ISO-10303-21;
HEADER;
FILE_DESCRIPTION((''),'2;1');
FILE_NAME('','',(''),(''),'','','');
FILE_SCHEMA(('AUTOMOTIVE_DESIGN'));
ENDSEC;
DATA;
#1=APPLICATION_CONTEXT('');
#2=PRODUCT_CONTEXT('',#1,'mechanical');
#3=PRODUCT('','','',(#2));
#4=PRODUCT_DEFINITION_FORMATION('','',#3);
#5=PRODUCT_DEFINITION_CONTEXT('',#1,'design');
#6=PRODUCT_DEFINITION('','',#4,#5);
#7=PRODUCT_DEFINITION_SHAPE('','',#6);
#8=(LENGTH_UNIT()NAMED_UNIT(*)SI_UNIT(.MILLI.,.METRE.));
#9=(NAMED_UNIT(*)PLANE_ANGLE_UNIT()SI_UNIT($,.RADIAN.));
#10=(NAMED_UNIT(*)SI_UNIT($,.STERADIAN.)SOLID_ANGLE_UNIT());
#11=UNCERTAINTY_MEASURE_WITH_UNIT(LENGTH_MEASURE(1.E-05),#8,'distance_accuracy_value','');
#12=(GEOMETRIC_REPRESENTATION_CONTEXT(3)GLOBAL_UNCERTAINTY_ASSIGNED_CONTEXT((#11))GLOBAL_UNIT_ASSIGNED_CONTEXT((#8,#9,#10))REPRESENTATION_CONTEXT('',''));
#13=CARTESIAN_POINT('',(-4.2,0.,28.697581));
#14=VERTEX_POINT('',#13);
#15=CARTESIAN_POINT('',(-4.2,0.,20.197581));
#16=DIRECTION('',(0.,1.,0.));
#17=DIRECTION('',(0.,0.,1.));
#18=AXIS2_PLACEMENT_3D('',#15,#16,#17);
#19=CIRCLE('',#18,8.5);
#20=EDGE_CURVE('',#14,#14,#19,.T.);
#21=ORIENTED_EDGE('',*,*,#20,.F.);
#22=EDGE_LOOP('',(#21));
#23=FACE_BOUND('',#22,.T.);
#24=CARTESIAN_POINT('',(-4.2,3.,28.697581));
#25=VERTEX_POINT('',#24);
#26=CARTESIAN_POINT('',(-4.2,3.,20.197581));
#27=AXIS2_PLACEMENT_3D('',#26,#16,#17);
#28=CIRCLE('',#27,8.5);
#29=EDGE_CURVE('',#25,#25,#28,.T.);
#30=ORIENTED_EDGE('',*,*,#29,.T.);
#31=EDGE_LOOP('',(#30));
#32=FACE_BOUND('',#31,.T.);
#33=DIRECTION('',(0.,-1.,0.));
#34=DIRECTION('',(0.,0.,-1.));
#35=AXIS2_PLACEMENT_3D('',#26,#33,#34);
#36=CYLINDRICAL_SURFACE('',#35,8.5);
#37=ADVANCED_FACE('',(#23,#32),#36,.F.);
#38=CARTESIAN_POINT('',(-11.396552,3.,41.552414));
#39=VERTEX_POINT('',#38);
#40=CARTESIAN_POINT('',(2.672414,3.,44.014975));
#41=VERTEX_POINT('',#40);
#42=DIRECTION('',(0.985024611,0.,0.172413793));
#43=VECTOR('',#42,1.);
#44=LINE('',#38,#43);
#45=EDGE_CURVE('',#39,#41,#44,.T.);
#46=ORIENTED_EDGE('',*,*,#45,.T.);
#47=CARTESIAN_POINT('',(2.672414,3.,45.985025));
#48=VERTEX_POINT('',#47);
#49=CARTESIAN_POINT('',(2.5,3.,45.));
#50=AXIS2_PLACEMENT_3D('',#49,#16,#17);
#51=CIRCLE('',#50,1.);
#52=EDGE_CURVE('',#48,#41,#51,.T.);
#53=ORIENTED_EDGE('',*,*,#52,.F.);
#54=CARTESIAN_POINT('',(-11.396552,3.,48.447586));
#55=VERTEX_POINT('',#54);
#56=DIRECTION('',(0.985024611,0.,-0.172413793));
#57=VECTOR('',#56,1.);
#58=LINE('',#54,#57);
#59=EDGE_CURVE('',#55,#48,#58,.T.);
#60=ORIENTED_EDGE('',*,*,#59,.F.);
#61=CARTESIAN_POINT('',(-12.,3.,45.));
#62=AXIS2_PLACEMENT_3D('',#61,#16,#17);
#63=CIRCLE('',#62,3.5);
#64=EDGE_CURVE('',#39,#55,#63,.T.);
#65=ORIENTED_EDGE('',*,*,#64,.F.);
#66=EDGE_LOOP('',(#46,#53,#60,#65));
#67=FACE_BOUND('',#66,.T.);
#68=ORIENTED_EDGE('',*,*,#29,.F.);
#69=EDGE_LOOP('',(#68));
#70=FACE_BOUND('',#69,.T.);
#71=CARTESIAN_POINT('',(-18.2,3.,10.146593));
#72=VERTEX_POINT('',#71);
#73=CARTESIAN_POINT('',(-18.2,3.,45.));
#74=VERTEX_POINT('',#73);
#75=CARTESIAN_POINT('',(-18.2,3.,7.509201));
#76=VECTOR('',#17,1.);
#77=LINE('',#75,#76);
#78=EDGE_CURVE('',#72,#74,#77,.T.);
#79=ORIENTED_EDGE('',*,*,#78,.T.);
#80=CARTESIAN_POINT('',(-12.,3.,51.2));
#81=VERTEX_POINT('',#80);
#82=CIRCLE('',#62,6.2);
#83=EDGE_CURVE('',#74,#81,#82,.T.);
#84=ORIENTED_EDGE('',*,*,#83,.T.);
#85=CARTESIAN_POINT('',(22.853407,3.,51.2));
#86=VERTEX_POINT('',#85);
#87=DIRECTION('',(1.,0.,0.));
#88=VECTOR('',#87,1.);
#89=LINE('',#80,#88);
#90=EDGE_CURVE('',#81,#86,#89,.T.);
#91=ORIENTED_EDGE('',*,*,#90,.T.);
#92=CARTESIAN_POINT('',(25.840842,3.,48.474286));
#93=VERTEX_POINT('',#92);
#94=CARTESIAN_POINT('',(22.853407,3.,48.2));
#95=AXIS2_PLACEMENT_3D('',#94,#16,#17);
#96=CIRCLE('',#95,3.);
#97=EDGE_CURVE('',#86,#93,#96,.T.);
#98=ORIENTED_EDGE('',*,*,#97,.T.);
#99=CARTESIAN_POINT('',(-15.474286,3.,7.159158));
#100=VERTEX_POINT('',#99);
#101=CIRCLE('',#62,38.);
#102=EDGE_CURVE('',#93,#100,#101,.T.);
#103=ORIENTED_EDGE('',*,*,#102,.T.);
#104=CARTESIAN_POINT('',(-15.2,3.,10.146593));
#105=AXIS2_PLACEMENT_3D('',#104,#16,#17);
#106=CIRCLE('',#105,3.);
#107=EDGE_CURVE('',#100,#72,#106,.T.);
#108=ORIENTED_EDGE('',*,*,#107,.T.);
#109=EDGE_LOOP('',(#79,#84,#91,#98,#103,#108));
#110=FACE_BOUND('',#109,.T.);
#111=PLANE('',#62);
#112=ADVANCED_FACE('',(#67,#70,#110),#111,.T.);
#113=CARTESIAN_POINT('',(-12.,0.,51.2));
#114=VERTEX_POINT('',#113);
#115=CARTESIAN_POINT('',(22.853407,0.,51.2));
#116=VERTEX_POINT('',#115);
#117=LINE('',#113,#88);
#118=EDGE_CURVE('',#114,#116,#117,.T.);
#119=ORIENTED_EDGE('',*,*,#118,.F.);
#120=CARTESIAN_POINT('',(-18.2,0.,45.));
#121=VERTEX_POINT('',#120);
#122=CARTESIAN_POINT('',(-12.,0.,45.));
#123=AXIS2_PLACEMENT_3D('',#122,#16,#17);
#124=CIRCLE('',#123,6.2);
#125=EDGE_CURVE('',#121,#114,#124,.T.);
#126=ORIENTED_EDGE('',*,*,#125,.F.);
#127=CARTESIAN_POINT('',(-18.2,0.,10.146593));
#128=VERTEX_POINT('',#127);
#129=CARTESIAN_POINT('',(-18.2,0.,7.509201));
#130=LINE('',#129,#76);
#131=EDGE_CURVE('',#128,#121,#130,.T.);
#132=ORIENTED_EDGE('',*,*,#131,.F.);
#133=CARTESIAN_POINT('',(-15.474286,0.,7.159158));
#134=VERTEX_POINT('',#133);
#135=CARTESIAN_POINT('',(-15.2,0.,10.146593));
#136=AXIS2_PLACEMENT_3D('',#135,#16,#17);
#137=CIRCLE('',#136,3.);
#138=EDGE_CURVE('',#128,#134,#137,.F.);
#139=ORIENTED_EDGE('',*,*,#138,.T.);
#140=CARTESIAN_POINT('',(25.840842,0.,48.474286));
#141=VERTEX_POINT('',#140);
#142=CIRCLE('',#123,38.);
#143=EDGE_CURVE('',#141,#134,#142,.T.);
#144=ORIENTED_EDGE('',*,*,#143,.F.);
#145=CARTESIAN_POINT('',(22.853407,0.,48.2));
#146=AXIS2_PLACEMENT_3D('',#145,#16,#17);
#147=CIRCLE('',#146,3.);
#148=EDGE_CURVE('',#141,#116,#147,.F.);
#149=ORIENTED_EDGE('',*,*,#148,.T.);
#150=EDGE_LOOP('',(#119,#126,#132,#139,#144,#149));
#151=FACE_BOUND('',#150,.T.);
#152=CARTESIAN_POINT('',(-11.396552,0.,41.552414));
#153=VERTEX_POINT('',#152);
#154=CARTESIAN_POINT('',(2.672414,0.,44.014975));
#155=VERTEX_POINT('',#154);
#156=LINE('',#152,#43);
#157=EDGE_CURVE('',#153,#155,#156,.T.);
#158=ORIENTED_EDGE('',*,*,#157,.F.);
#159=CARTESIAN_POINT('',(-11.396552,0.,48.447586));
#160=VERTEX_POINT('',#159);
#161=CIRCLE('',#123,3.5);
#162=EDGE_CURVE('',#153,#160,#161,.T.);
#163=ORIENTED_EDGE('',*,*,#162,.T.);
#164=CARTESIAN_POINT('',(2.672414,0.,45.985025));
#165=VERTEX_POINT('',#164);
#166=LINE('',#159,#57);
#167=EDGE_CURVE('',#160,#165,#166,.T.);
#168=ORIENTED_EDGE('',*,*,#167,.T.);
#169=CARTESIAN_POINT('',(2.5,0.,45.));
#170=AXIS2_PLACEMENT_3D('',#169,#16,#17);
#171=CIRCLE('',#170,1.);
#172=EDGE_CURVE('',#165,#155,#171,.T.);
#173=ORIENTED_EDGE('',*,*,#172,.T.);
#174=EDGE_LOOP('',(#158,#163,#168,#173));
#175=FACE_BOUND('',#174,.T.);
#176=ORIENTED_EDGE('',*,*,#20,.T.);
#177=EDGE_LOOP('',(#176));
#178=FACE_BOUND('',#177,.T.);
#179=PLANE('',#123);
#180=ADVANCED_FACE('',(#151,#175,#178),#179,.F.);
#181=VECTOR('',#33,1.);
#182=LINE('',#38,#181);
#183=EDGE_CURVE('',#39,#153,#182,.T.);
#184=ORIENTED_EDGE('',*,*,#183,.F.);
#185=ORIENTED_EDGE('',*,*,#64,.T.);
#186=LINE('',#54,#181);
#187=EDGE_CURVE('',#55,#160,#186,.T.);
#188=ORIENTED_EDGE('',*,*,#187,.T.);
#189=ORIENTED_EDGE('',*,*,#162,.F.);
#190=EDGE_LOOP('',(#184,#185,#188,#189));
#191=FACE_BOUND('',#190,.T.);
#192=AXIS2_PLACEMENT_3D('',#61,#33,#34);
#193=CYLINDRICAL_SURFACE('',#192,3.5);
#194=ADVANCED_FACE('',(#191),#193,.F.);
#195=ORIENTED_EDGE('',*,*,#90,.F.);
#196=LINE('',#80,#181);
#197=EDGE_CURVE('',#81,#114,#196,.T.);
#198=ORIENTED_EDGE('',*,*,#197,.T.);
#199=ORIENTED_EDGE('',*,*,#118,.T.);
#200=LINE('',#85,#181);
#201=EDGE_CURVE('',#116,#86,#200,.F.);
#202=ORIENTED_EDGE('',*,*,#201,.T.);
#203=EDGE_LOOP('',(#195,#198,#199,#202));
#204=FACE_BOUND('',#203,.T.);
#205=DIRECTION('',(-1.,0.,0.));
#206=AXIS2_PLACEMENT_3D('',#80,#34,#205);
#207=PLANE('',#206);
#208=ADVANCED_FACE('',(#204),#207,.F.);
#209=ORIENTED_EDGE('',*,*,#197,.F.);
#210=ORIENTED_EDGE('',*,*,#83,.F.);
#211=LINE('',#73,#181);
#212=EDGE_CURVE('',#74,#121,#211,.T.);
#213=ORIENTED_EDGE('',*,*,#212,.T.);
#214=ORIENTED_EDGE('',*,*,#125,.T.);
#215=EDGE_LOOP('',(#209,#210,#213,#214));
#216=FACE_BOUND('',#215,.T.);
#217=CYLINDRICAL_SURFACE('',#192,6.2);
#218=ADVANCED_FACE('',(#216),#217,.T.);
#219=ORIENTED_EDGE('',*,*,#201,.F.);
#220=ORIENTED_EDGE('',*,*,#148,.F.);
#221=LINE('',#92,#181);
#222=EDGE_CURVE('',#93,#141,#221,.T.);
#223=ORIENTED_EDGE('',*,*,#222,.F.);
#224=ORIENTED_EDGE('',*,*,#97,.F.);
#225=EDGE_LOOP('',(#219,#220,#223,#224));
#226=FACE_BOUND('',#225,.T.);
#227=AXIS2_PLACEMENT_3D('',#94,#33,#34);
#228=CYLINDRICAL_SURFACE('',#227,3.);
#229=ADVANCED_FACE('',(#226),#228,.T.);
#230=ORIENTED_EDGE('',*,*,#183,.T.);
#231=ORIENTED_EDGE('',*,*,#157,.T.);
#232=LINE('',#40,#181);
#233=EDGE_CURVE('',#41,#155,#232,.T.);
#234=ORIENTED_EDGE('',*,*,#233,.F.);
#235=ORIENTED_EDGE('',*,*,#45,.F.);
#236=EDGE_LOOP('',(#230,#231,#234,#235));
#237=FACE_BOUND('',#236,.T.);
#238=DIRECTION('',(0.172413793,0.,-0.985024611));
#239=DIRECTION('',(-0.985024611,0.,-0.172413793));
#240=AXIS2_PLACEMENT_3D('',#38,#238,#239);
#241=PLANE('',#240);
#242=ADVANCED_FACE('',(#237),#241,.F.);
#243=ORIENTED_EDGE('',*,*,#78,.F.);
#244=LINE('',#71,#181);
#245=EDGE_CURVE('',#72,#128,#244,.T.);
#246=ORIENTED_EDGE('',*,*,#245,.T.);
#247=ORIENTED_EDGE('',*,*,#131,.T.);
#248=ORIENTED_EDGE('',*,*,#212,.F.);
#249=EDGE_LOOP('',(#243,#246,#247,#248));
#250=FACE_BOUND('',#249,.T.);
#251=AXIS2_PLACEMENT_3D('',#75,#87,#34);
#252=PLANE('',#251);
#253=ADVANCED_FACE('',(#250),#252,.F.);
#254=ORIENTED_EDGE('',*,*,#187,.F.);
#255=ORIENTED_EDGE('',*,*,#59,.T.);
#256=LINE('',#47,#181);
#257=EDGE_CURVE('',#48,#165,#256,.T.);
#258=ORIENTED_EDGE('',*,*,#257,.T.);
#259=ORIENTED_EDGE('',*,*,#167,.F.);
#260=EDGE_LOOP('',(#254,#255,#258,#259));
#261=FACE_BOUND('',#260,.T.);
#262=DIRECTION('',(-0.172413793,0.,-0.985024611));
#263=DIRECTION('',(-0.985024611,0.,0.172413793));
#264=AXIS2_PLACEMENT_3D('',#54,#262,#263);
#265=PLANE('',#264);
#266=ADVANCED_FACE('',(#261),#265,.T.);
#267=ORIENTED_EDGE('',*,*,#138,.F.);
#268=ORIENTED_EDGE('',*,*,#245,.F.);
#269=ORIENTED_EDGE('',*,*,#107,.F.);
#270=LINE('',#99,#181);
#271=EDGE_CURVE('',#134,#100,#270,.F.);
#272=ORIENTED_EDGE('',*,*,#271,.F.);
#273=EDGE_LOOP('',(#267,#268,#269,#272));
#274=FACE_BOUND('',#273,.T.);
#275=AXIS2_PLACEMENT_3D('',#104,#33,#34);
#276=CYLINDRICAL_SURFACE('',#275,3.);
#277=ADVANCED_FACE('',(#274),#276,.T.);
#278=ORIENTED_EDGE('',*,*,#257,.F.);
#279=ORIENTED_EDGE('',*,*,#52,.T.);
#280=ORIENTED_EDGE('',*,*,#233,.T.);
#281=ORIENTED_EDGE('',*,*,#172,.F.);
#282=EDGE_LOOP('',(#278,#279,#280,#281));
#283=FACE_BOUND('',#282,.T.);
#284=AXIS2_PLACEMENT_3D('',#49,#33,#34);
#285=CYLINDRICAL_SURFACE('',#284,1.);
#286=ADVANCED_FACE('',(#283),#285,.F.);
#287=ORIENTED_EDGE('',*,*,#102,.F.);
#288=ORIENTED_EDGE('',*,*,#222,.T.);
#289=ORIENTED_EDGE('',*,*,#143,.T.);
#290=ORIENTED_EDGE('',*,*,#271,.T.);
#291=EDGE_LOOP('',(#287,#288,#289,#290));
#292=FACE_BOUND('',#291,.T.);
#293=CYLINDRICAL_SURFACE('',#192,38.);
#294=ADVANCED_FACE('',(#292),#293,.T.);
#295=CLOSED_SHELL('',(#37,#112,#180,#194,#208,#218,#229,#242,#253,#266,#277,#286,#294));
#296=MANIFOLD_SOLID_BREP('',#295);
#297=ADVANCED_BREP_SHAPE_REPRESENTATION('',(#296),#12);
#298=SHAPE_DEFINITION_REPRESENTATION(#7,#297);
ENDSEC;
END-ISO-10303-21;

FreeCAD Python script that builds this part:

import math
import FreeCAD as App
import Part
import Sketcher
from FreeCAD import Vector


def edges_at(feature, points):
    """Names of the edges that pass closest to the given points."""
    edges = feature.Shape.Edges
    near = lambda p: min(range(len(edges)), key=lambda i: edges[i].distToShape(Part.Vertex(*p))[0])
    return sorted({f"Edge{near(p) + 1}" for p in points})

doc = App.newDocument("Part")
params = doc.addObject("Spreadsheet::Sheet", "Params")
for row, (alias, value) in enumerate([
    ("sketch1_diameter", "3 mm"),
    ("sketch1_diameter2", "17 mm"),
    ("sketch1_radius", "38 mm"),
    ("sketch1_radius2", "6.2 mm"),
    ("pad1_length", "3 mm"),
    ("sketch2_radius", "1 mm"),
    ("sketch2_radius2", "3.5 mm"),
    ("fillet_radius", "3 mm"),
], start=1):
    params.set(f"A{row}", alias)
    params.set(f"B{row}", "=" + value)
    params.setAlias(f"B{row}", alias)

body = doc.addObject("PartDesign::Body", "Body")

# Sketch on XZ plane
sketch1 = doc.addObject("Sketcher::SketchObject", "Sketch")
body.addObject(sketch1)
sketch1.AttachmentSupport = (doc.XZ_Plane, [""])
sketch1.MapMode = "FlatFace"
sketch1.addGeometry([
    Part.LineSegment(Vector(-12, 51.2, 0), Vector(25.5, 51.2, 0)),  # 0
    Part.ArcOfCircle(Part.Circle(Vector(-12, 45, 0), Vector(0, 0, 1), 38), math.radians(-99), math.radians(9)),  # 1
    Part.LineSegment(Vector(-18.2, 7.5, 0), Vector(-18.2, 45, 0)),  # 2
    Part.ArcOfCircle(Part.Circle(Vector(-12, 45, 0), Vector(0, 0, 1), 6.2), math.radians(90), math.radians(180)),  # 3
    Part.Circle(Vector(-12, 45, 0), Vector(0, 0, 1), 1.5),  # 4
    Part.Circle(Vector(-4.2, 20.2, 0), Vector(0, 0, 1), 8.5),  # 5
], False)
sketch1.addConstraint([
    Sketcher.Constraint("Coincident", 0, 2, 1, 2),
    Sketcher.Constraint("Coincident", 1, 1, 2, 1),
    Sketcher.Constraint("Tangent", 2, 2, 3, 2),
    Sketcher.Constraint("Tangent", 3, 1, 0, 1),
    Sketcher.Constraint("Horizontal", 0),
    Sketcher.Constraint("Vertical", 2),
    Sketcher.Constraint("Coincident", 3, 3, 1, 3),
    Sketcher.Constraint("Coincident", 4, 3, 1, 3),
    Sketcher.Constraint("Diameter", 4, 3.0),
    Sketcher.Constraint("Diameter", 5, 17.0),
    Sketcher.Constraint("Radius", 1, 38.0),
    Sketcher.Constraint("Radius", 3, 6.2),
    Sketcher.Constraint("DistanceX", 1, 3, -1, 1, 12.0),
    Sketcher.Constraint("DistanceY", -1, 1, 1, 3, 45.0),
    Sketcher.Constraint("DistanceX", 1, 1, 5, 3, 14.0),
    Sketcher.Constraint("DistanceY", -1, 1, 5, 3, 20.197581),
])
sketch1.setExpression("Constraints[8]", "Params.sketch1_diameter")
sketch1.setExpression("Constraints[9]", "Params.sketch1_diameter2")
sketch1.setExpression("Constraints[10]", "Params.sketch1_radius")
sketch1.setExpression("Constraints[11]", "Params.sketch1_radius2")
pad1 = doc.addObject("PartDesign::Pad", "Pad")
body.addObject(pad1)
pad1.Profile = sketch1
pad1.setExpression("Length", "Params.pad1_length")
pad1.Reversed = True

# Sketch on XZ plane
sketch2 = doc.addObject("Sketcher::SketchObject", "Sketch001")
body.addObject(sketch2)
sketch2.AttachmentSupport = (doc.XZ_Plane, [""])
sketch2.MapMode = "FlatFace"
sketch2.addGeometry([
    Part.LineSegment(Vector(2.7, 44, 0), Vector(-11.4, 41.6, 0)),
    Part.ArcOfCircle(Part.Circle(Vector(-12, 45, 0), Vector(0, 0, 1), 3.5), math.radians(80), math.radians(280)),
    Part.LineSegment(Vector(-11.4, 48.4, 0), Vector(2.7, 46, 0)),
    Part.ArcOfCircle(Part.Circle(Vector(2.5, 45, 0), Vector(0, 0, 1), 1), math.radians(-80), math.radians(80)),
], False)
sketch2.addConstraint([
    Sketcher.Constraint("Tangent", 0, 2, 1, 2),
    Sketcher.Constraint("Tangent", 1, 1, 2, 1),
    Sketcher.Constraint("Tangent", 2, 2, 3, 2),
    Sketcher.Constraint("Tangent", 3, 1, 0, 1),
    Sketcher.Constraint("Horizontal", 1, 3, 3, 3),
    Sketcher.Constraint("Radius", 3, 1.0),
    Sketcher.Constraint("Radius", 1, 3.5),
    Sketcher.Constraint("DistanceX", 1, 3, -1, 1, 12.0),
    Sketcher.Constraint("DistanceY", -1, 1, 1, 3, 45.0),
    Sketcher.Constraint("DistanceX", -1, 1, 3, 3, 2.5),
])
sketch2.setExpression("Constraints[5]", "Params.sketch2_radius")
sketch2.setExpression("Constraints[6]", "Params.sketch2_radius2")
pocket1 = doc.addObject("PartDesign::Pocket", "Pocket")
body.addObject(pocket1)
pocket1.Profile = sketch2
pocket1.Type = "ThroughAll"
doc.recompute()

fillet = doc.addObject("PartDesign::Fillet", "Fillet")
body.addObject(fillet)
fillet.Base = (pocket1, edges_at(pocket1, [(-18.2, 1.5, 7.509), (25.491, 1.5, 51.2)]))
fillet.setExpression("Radius", "Params.fillet_radius")

doc.recompute()
